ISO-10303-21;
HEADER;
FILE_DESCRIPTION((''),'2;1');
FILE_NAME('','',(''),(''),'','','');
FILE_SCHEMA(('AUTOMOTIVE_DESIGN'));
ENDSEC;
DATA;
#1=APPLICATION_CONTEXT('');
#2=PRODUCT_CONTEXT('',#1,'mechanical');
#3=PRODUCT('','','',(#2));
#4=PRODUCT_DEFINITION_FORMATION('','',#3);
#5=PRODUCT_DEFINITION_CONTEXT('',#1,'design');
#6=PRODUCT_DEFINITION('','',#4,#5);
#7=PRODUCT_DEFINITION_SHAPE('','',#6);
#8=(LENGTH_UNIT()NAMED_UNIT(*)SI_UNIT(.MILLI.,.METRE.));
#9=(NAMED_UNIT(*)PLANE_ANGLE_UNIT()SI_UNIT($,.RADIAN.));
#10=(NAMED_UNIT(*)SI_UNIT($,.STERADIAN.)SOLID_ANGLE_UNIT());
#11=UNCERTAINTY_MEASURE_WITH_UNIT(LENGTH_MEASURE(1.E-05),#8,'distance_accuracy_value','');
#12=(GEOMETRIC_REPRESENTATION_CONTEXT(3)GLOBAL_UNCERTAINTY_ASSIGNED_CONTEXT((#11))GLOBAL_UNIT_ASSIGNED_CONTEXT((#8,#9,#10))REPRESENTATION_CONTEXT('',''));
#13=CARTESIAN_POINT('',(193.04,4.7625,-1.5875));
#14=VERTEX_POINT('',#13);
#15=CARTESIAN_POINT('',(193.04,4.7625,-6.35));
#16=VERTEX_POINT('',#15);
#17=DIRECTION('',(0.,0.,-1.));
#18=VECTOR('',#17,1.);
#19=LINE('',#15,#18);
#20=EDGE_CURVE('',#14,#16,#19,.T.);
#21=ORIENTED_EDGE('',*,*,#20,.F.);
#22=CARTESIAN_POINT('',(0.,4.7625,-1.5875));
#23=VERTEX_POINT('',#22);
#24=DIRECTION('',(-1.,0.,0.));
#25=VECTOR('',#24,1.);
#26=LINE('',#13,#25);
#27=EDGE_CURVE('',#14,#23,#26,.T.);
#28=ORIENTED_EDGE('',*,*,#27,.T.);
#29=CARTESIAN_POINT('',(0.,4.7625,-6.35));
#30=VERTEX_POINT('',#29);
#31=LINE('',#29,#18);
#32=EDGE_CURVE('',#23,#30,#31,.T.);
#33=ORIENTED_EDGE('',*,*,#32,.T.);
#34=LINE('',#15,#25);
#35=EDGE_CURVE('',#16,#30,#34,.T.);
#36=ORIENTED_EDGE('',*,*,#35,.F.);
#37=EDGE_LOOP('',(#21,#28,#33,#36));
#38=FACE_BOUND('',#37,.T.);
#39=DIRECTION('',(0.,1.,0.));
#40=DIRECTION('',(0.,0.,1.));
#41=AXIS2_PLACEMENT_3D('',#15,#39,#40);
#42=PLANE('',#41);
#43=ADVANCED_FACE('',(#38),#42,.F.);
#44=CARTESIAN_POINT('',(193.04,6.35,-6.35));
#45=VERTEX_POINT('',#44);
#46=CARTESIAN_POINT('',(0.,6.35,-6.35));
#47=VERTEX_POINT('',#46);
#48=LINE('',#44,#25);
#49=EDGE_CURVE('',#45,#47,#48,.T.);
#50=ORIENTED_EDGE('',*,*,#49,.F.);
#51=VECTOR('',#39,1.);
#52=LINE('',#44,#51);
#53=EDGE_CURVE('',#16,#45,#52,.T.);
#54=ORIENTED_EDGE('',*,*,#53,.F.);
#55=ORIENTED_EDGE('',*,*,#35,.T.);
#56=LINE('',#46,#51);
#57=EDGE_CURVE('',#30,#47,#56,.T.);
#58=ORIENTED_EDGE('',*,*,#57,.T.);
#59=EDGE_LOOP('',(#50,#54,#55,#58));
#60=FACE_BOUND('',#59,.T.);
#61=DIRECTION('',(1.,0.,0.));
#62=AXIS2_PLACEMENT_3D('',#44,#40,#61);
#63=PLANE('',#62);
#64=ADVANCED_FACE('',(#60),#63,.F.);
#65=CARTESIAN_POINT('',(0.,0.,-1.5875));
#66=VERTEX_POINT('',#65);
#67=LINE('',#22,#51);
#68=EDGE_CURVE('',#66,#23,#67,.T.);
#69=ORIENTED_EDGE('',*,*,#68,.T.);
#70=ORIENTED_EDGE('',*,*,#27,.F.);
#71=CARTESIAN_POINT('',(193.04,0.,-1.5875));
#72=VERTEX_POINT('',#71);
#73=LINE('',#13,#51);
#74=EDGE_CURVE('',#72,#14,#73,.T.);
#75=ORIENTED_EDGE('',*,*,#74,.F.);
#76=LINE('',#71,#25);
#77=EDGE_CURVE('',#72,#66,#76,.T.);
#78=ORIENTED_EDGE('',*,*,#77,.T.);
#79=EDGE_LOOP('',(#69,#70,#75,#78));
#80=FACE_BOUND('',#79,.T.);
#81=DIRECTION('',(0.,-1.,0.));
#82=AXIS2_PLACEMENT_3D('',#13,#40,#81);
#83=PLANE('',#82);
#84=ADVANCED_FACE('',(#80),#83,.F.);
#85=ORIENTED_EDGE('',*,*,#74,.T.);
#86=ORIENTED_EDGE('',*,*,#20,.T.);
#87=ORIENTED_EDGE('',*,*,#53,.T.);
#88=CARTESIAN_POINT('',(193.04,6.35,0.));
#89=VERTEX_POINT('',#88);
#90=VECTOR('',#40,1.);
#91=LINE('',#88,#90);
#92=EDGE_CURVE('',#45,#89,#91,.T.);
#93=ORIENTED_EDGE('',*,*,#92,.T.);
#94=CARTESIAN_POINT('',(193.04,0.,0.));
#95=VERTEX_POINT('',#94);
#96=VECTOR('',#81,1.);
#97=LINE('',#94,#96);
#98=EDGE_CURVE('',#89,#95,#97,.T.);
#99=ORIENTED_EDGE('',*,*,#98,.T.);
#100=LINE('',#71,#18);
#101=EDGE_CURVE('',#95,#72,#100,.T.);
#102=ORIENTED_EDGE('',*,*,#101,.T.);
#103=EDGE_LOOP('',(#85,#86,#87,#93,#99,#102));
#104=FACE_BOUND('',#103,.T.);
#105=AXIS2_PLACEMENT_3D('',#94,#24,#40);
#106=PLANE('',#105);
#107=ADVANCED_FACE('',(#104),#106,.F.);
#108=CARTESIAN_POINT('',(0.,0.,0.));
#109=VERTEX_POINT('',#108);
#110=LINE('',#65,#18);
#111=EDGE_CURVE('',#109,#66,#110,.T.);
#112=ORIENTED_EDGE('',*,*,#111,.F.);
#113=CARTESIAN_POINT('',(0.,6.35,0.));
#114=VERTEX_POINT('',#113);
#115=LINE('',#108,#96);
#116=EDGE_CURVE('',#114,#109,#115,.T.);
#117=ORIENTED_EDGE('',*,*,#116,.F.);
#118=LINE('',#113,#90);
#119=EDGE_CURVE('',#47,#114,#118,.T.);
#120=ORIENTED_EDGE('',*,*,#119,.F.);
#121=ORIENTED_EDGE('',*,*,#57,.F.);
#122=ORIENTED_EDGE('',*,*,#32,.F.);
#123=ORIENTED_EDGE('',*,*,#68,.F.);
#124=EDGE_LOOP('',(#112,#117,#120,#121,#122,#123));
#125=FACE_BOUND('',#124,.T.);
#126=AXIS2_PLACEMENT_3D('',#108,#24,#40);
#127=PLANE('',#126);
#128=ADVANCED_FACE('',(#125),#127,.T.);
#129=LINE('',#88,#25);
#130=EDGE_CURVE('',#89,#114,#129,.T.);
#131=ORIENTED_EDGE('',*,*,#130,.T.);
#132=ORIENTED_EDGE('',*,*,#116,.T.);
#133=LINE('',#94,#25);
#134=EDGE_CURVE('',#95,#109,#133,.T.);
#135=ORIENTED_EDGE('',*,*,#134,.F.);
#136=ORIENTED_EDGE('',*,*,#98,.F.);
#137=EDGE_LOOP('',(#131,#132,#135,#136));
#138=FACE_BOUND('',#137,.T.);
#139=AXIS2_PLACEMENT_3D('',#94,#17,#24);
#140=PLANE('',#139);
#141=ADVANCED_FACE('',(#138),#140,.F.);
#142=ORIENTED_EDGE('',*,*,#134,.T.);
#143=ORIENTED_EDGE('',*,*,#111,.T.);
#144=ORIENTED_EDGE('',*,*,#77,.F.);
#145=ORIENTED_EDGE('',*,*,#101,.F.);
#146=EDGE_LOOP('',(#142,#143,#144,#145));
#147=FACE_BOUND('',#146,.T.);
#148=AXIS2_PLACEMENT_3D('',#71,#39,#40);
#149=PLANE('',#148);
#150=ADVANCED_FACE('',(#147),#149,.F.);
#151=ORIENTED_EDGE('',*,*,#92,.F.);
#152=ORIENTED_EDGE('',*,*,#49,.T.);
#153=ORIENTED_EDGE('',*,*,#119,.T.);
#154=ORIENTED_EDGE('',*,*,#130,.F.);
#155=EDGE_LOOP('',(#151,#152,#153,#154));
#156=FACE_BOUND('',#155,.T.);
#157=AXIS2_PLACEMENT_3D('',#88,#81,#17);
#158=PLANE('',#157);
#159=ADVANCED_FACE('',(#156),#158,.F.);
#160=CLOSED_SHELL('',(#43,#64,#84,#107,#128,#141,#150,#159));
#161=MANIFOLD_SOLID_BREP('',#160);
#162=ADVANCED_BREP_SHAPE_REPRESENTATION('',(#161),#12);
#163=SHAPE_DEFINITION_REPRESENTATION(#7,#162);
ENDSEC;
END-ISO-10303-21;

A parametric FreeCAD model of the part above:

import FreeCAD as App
import Part
import Sketcher

V = App.Vector
Q = App.Units.Quantity

doc = App.newDocument("Part")
body = doc.addObject("PartDesign::Body", "Body")

sketch1 = body.newObject("Sketcher::SketchObject", "Sketch")
sketch1.AttachmentSupport = (doc.getObject("YZ_Plane"), [""])
sketch1.MapMode = "FlatFace"
sketch1.addGeometry([
    Part.LineSegment(V(6.35, 0, 0), V(0, 0, 0)),
    Part.LineSegment(V(0, 0, 0), V(0, -1.5875, 0)),
    Part.LineSegment(V(0, -1.5875, 0), V(4.7625, -1.5875, 0)),
    Part.LineSegment(V(4.7625, -1.5875, 0), V(4.7625, -6.35, 0)),
    Part.LineSegment(V(4.7625, -6.35, 0), V(6.35, -6.35, 0)),
    Part.LineSegment(V(6.35, -6.35, 0), V(6.35, 0, 0)),
], False)
sketch1.addConstraint([
    Sketcher.Constraint("Coincident", 0, 2, 1, 1),
    Sketcher.Constraint("Coincident", 1, 2, 2, 1),
    Sketcher.Constraint("Coincident", 2, 2, 3, 1),
    Sketcher.Constraint("Coincident", 3, 2, 4, 1),
    Sketcher.Constraint("Coincident", 4, 2, 5, 1),
    Sketcher.Constraint("Coincident", 5, 2, 0, 1),
    Sketcher.Constraint("Horizontal", 0),
    Sketcher.Constraint("Vertical", 1),
    Sketcher.Constraint("Horizontal", 2),
    Sketcher.Constraint("Vertical", 3),
    Sketcher.Constraint("Horizontal", 4),
    Sketcher.Constraint("Vertical", 5),
    Sketcher.Constraint("Coincident", 0, 2, -1, 1),
    Sketcher.Constraint("Equal", 4, 1),
    Sketcher.Constraint("Equal", 2, 3),
    Sketcher.Constraint("DistanceX", 0, 2, 0, 1, Q("0.25 in")),
    Sketcher.Constraint("DistanceX", 2, 1, 2, 2, Q("0.1875 in")),
])
pad1 = body.newObject("PartDesign::Pad", "Pad")
pad1.Profile = sketch1
pad1.Length = Q("7.6 in")

doc.recompute()
